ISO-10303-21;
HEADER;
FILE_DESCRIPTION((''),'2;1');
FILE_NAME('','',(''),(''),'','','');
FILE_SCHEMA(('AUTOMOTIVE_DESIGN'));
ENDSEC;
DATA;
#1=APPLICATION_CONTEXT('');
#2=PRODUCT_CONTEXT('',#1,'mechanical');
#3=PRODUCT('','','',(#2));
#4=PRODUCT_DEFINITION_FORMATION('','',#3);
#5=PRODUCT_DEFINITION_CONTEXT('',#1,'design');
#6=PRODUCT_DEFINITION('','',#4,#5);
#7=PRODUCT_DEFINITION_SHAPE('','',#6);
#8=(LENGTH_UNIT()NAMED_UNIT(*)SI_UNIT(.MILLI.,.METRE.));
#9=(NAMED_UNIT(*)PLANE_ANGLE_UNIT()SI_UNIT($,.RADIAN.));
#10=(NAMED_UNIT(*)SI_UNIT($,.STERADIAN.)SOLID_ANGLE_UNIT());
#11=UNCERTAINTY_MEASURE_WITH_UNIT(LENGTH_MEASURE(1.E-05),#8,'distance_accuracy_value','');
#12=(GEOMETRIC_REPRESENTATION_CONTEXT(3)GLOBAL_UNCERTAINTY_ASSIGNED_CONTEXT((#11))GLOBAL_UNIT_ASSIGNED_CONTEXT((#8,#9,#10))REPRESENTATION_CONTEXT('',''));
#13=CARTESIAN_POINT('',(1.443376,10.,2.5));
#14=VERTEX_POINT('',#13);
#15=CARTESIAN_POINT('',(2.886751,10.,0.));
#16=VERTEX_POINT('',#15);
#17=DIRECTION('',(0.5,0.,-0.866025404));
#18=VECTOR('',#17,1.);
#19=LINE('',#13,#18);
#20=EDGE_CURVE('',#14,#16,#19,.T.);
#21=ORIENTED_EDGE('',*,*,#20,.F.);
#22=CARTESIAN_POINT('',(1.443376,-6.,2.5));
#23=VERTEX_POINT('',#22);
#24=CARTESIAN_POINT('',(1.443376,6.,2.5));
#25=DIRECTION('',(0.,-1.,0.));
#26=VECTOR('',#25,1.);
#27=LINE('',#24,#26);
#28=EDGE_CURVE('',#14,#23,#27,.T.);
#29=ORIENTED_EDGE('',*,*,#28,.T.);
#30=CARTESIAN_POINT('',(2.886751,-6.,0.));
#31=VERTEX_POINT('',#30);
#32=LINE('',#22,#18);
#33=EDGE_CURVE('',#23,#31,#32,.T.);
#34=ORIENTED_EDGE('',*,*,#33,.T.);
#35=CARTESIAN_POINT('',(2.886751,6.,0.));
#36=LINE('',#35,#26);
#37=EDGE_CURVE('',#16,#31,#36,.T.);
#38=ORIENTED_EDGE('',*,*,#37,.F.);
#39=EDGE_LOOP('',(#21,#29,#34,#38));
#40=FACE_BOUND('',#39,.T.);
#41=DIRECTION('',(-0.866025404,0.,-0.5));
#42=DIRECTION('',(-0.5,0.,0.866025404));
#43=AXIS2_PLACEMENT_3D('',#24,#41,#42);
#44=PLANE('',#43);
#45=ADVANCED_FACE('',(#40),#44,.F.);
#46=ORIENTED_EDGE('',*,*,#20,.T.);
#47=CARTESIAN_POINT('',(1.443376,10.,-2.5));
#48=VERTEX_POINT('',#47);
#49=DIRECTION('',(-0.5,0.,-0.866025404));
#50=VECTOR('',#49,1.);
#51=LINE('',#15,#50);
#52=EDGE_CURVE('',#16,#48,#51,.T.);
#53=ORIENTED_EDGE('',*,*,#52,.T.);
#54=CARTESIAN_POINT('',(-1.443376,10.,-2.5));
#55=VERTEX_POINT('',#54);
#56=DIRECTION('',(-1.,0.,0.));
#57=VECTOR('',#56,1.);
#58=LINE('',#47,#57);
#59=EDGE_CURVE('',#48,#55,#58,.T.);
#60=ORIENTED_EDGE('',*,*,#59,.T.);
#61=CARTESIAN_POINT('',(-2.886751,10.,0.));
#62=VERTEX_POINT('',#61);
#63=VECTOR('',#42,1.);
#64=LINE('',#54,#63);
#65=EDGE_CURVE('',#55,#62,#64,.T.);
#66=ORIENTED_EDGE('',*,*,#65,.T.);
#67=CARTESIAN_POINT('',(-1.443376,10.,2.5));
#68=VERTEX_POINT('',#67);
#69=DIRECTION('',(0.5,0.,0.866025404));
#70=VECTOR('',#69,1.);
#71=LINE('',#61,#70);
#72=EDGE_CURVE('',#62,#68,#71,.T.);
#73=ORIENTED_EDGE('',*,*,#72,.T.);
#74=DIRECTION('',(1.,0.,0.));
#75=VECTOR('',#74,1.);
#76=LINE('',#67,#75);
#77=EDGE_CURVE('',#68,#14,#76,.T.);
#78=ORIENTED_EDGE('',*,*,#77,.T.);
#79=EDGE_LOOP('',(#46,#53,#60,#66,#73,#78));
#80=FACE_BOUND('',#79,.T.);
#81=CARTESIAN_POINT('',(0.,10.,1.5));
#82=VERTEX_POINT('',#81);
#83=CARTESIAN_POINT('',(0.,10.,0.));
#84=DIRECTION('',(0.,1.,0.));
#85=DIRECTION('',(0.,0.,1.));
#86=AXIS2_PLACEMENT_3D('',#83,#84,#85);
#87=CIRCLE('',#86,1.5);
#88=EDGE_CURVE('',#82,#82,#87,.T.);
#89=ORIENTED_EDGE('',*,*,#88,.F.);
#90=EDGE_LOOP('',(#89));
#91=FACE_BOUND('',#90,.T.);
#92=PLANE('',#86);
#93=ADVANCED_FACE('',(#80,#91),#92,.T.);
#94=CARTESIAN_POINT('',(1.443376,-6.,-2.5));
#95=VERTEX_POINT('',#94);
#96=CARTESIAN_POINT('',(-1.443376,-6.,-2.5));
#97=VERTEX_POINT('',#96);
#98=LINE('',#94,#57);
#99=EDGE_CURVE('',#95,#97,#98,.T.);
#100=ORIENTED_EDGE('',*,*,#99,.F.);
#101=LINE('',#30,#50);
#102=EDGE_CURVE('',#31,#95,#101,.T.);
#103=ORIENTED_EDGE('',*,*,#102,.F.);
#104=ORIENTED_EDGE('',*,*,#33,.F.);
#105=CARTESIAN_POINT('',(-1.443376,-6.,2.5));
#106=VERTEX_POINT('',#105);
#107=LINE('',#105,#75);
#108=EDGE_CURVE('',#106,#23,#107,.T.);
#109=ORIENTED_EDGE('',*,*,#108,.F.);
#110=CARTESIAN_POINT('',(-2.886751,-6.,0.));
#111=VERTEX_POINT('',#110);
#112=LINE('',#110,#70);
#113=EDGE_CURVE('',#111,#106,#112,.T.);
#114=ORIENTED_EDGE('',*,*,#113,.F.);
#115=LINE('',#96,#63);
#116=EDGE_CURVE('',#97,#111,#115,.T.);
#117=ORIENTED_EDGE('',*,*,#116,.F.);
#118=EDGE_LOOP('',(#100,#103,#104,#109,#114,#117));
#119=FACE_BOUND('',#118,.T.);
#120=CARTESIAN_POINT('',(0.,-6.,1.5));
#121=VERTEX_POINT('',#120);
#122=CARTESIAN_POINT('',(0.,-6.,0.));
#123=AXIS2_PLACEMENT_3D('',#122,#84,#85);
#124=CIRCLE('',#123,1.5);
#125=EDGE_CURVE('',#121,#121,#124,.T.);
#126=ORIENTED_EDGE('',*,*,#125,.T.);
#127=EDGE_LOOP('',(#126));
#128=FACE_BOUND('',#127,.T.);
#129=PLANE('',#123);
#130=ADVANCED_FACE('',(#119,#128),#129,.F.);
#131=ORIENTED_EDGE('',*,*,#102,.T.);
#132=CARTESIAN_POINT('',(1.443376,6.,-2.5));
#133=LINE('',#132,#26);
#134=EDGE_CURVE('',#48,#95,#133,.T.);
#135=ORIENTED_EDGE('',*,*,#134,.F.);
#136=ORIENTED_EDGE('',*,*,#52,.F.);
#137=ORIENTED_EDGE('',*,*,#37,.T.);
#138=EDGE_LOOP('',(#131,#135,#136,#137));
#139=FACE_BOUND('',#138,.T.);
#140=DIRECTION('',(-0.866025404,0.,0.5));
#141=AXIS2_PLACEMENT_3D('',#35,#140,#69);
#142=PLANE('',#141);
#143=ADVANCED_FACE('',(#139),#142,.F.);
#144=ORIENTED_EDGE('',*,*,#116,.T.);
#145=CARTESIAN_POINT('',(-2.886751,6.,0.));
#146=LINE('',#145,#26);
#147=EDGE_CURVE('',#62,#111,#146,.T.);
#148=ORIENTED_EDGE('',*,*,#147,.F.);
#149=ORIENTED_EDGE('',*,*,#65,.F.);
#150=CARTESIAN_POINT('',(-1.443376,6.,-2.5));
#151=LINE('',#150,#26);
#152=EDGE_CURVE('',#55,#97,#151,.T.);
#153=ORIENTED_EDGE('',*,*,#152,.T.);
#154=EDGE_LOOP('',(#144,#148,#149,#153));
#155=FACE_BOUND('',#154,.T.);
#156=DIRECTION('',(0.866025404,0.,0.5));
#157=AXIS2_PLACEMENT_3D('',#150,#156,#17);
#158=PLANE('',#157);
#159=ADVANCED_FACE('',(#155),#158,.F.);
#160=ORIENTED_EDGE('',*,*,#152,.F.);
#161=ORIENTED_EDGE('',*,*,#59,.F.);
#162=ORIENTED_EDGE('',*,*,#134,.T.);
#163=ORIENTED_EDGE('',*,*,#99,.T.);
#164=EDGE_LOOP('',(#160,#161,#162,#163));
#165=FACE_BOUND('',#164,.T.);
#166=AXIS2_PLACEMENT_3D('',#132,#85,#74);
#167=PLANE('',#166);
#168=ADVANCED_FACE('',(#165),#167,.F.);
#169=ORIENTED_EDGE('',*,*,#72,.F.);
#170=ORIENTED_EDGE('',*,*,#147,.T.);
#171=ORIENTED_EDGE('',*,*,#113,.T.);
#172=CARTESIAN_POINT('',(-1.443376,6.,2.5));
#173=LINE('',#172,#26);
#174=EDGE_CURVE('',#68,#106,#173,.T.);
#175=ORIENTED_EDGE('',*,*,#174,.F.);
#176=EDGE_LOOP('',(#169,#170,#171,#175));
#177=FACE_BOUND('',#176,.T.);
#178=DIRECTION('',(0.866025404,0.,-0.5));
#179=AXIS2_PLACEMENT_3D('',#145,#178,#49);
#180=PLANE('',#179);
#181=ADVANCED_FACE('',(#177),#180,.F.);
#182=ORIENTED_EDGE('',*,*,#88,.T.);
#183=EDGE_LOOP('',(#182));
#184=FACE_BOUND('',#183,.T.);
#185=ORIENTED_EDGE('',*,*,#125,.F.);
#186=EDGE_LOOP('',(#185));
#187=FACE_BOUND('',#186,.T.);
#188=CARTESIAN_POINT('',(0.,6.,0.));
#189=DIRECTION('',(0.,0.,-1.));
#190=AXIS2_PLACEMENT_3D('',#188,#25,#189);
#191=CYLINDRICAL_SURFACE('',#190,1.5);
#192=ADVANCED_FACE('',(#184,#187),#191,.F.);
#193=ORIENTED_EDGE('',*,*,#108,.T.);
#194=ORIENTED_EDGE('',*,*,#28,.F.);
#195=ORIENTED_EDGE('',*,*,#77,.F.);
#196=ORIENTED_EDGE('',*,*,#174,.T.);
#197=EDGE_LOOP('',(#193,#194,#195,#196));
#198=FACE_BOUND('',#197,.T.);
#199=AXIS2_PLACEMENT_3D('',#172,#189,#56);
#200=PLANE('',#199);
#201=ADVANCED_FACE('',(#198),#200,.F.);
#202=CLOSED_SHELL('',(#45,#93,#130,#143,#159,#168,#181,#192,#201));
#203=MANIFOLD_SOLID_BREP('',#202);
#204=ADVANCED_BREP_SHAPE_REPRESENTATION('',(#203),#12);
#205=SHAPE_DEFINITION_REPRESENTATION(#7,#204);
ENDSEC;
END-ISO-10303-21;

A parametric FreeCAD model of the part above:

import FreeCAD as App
import Part
import Sketcher

V = App.Vector
Q = App.Units.Quantity

doc = App.newDocument("Part")
body = doc.addObject("PartDesign::Body", "Body")

# Sketch on XZ plane
sketch1 = doc.addObject("Sketcher::SketchObject", "Sketch")
body.addObject(sketch1)
sketch1.AttachmentSupport = (doc.XZ_Plane, [""])
sketch1.MapMode = "FlatFace"
sketch1.addGeometry([
    Part.LineSegment(V(1.4, 2.5, 0), V(2.9, 0, 0)),  # 0
    Part.LineSegment(V(2.9, 0, 0), V(1.4, -2.5, 0)),  # 1
    Part.LineSegment(V(1.4, -2.5, 0), V(-1.4, -2.5, 0)),  # 2
    Part.LineSegment(V(-1.4, -2.5, 0), V(-2.9, 0, 0)),  # 3
    Part.LineSegment(V(-2.9, 0, 0), V(-1.4, 2.5, 0)),  # 4
    Part.LineSegment(V(-1.4, 2.5, 0), V(1.4, 2.5, 0)),  # 5
    Part.Circle(V(0, 0, 0), V(0, 0, 1), 1.5),  # 6
], False)
sketch1.addConstraint([
    Sketcher.Constraint("Coincident", 0, 2, 1, 1),
    Sketcher.Constraint("Coincident", 1, 2, 2, 1),
    Sketcher.Constraint("Coincident", 2, 2, 3, 1),
    Sketcher.Constraint("Coincident", 3, 2, 4, 1),
    Sketcher.Constraint("Coincident", 4, 2, 5, 1),
    Sketcher.Constraint("Coincident", 5, 2, 0, 1),
    Sketcher.Constraint("Horizontal", 2),
    Sketcher.Constraint("Horizontal", 5),
    Sketcher.Constraint("Coincident", 6, 3, -1, 1),
    Sketcher.Constraint("Symmetric", 0, 2, 3, 2, -1, 1),
    Sketcher.Constraint("Symmetric", 1, 2, 4, 2, -1, 1),
    Sketcher.Constraint("PointOnObject", 0, 2, -1),
    Sketcher.Constraint("Parallel", 0, 3),
    Sketcher.Constraint("Vertical", 2, 2, 4, 2),
    Sketcher.Constraint("Diameter", 6, 3.0),
    Sketcher.Constraint("Angle", 0, Q("-60 deg")),
    Sketcher.Constraint("DistanceY", 2, 2, 4, 2, 5.0),
    Sketcher.Constraint("DistanceX", 2, 2, 2, 1, 2.886751),
])
pad1 = doc.addObject("PartDesign::Pad", "Pad")
body.addObject(pad1)
pad1.Profile = sketch1
pad1.Length = 12
pad1.Midplane = True

# Sketch on XZ plane
sketch2 = doc.addObject("Sketcher::SketchObject", "Sketch001")
body.addObject(sketch2)
sketch2.AttachmentSupport = (doc.XZ_Plane, [""])
sketch2.MapMode = "FlatFace"
sketch2.AttachmentOffset = App.Placement(V(0, 0, -6), App.Rotation())
sketch2.addGeometry([
    Part.LineSegment(V(-1.4, 2.5, 0), V(1.4, 2.5, 0)),  # 0
    Part.LineSegment(V(1.4, 2.5, 0), V(2.9, 0, 0)),  # 1
    Part.LineSegment(V(2.9, 0, 0), V(1.4, -2.5, 0)),  # 2
    Part.LineSegment(V(1.4, -2.5, 0), V(-1.4, -2.5, 0)),  # 3
    Part.LineSegment(V(-1.4, -2.5, 0), V(-2.9, 0, 0)),  # 4
    Part.LineSegment(V(-2.9, 0, 0), V(-1.4, 2.5, 0)),  # 5
    Part.Circle(V(0, 0, 0), V(0, 0, 1), 1.5),  # 6
], False)
sketch2.addConstraint([
    Sketcher.Constraint("Coincident", 0, 2, 1, 1),
    Sketcher.Constraint("Coincident", 1, 2, 2, 1),
    Sketcher.Constraint("Coincident", 2, 2, 3, 1),
    Sketcher.Constraint("Coincident", 3, 2, 4, 1),
    Sketcher.Constraint("Coincident", 4, 2, 5, 1),
    Sketcher.Constraint("Coincident", 5, 2, 0, 1),
    Sketcher.Constraint("Horizontal", 0),
    Sketcher.Constraint("Horizontal", 3),
    Sketcher.Constraint("Coincident", 6, 3, -1, 1),
    Sketcher.Constraint("Symmetric", 0, 2, 3, 2, -1, 1),
    Sketcher.Constraint("Symmetric", 1, 2, 4, 2, -1, 1),
    Sketcher.Constraint("PointOnObject", 1, 2, -1),
    Sketcher.Constraint("Parallel", 2, 5),
    Sketcher.Constraint("Vertical", 0, 2, 2, 2),
    Sketcher.Constraint("Diameter", 6, 3.0),
    Sketcher.Constraint("Angle", 1, Q("-60 deg")),
    Sketcher.Constraint("DistanceY", 2, 2, 0, 2, 5.0),
    Sketcher.Constraint("DistanceX", 0, 1, 0, 2, 2.886751),
])
pad2 = doc.addObject("PartDesign::Pad", "Pad001")
body.addObject(pad2)
pad2.Profile = sketch2
pad2.Length = 4
pad2.Reversed = True

doc.recompute()
